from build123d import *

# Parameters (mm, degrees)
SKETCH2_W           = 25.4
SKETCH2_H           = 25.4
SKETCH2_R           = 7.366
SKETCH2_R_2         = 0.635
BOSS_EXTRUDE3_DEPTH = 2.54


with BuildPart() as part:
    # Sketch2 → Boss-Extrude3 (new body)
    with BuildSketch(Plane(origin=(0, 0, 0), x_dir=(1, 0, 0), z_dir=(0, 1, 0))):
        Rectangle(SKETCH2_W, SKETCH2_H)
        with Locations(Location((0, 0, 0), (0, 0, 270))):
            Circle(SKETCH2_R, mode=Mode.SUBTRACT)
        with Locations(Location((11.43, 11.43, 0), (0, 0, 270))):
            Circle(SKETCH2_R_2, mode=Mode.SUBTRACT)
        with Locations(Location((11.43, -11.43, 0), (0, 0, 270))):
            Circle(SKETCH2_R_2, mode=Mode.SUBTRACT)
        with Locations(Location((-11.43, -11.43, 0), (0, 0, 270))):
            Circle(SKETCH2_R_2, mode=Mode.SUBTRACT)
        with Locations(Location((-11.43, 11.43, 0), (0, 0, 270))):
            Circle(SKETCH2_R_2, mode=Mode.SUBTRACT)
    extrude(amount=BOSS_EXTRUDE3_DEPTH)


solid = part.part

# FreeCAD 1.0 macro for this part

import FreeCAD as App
import Part
import Sketcher
from FreeCAD import Vector
Q = App.Units.Quantity

doc = App.newDocument("Part")
body = doc.addObject("PartDesign::Body", "Body")

# Sketch on XZ plane
sketch1 = body.newObject("Sketcher::SketchObject", "Sketch")
sketch1.AttachmentSupport = (doc.getObject("XZ_Plane"), [""])
sketch1.MapMode = "FlatFace"
sketch1.addGeometry(Part.LineSegment(Vector(-12.7, -12.7, 0), Vector(-12.7, 12.7, 0)), False)
sketch1.addGeometry(Part.LineSegment(Vector(-12.7, 12.7, 0), Vector(12.7, 12.7, 0)), False)
sketch1.addGeometry(Part.LineSegment(Vector(12.7, 12.7, 0), Vector(12.7, -12.7, 0)), False)
sketch1.addGeometry(Part.LineSegment(Vector(12.7, -12.7, 0), Vector(-12.7, -12.7, 0)), False)
sketch1.addGeometry(Part.Circle(Vector(-11.4, 11.4, 0), Vector(0, 0, 1), 0.6), False)
sketch1.addGeometry(Part.Circle(Vector(11.4, 11.4, 0), Vector(0, 0, 1), 0.6), False)
sketch1.addGeometry(Part.Circle(Vector(-11.4, -11.4, 0), Vector(0, 0, 1), 0.6), False)
sketch1.addGeometry(Part.Circle(Vector(0, 0, 0), Vector(0, 0, 1), 7.4), False)
sketch1.addGeometry(Part.Circle(Vector(11.4, -11.4, 0), Vector(0, 0, 1), 0.6), False)
sketch1.addConstraint(Sketcher.Constraint("Coincident", 0, 2, 1, 1))
sketch1.addConstraint(Sketcher.Constraint("Coincident", 1, 2, 2, 1))
sketch1.addConstraint(Sketcher.Constraint("Coincident", 2, 2, 3, 1))
sketch1.addConstraint(Sketcher.Constraint("Coincident", 3, 2, 0, 1))
sketch1.addConstraint(Sketcher.Constraint("Vertical", 0))
sketch1.addConstraint(Sketcher.Constraint("Horizontal", 1))
sketch1.addConstraint(Sketcher.Constraint("Vertical", 2))
sketch1.addConstraint(Sketcher.Constraint("Horizontal", 3))
sketch1.addConstraint(Sketcher.Constraint("Coincident", 7, 3, -1, 1))
sketch1.addConstraint(Sketcher.Constraint("Equal", 4, 5))
sketch1.addConstraint(Sketcher.Constraint("Equal", 5, 6))
sketch1.addConstraint(Sketcher.Constraint("Equal", 6, 8))
sketch1.addConstraint(Sketcher.Constraint("Symmetric", 5, 3, 6, 3, -1, 1))
sketch1.addConstraint(Sketcher.Constraint("Symmetric", 4, 3, 8, 3, -1, 1))
sketch1.addConstraint(Sketcher.Constraint("Symmetric", 0, 2, 2, 2, -1, 1))
sketch1.addConstraint(Sketcher.Constraint("Symmetric", 4, 3, 5, 3, -2))
sketch1.addConstraint(Sketcher.Constraint("Equal", 3, 0))
sketch1.addConstraint(Sketcher.Constraint("Diameter", 4, Q("0.05 in")))
sketch1.addConstraint(Sketcher.Constraint("Diameter", 7, Q("0.58 in")))
sketch1.addConstraint(Sketcher.Constraint("DistanceX", 1, 1, 1, 2, Q("1 in")))
sketch1.addConstraint(Sketcher.Constraint("DistanceX", 4, 3, 5, 3, Q("0.9 in")))
sketch1.addConstraint(Sketcher.Constraint("DistanceY", 6, 3, 4, 3, Q("0.9 in")))
pad1 = body.newObject("PartDesign::Pad", "Pad")
pad1.Profile = sketch1
pad1.Length = Q("0.1 in")
pad1.Reversed = True

doc.recompute()
